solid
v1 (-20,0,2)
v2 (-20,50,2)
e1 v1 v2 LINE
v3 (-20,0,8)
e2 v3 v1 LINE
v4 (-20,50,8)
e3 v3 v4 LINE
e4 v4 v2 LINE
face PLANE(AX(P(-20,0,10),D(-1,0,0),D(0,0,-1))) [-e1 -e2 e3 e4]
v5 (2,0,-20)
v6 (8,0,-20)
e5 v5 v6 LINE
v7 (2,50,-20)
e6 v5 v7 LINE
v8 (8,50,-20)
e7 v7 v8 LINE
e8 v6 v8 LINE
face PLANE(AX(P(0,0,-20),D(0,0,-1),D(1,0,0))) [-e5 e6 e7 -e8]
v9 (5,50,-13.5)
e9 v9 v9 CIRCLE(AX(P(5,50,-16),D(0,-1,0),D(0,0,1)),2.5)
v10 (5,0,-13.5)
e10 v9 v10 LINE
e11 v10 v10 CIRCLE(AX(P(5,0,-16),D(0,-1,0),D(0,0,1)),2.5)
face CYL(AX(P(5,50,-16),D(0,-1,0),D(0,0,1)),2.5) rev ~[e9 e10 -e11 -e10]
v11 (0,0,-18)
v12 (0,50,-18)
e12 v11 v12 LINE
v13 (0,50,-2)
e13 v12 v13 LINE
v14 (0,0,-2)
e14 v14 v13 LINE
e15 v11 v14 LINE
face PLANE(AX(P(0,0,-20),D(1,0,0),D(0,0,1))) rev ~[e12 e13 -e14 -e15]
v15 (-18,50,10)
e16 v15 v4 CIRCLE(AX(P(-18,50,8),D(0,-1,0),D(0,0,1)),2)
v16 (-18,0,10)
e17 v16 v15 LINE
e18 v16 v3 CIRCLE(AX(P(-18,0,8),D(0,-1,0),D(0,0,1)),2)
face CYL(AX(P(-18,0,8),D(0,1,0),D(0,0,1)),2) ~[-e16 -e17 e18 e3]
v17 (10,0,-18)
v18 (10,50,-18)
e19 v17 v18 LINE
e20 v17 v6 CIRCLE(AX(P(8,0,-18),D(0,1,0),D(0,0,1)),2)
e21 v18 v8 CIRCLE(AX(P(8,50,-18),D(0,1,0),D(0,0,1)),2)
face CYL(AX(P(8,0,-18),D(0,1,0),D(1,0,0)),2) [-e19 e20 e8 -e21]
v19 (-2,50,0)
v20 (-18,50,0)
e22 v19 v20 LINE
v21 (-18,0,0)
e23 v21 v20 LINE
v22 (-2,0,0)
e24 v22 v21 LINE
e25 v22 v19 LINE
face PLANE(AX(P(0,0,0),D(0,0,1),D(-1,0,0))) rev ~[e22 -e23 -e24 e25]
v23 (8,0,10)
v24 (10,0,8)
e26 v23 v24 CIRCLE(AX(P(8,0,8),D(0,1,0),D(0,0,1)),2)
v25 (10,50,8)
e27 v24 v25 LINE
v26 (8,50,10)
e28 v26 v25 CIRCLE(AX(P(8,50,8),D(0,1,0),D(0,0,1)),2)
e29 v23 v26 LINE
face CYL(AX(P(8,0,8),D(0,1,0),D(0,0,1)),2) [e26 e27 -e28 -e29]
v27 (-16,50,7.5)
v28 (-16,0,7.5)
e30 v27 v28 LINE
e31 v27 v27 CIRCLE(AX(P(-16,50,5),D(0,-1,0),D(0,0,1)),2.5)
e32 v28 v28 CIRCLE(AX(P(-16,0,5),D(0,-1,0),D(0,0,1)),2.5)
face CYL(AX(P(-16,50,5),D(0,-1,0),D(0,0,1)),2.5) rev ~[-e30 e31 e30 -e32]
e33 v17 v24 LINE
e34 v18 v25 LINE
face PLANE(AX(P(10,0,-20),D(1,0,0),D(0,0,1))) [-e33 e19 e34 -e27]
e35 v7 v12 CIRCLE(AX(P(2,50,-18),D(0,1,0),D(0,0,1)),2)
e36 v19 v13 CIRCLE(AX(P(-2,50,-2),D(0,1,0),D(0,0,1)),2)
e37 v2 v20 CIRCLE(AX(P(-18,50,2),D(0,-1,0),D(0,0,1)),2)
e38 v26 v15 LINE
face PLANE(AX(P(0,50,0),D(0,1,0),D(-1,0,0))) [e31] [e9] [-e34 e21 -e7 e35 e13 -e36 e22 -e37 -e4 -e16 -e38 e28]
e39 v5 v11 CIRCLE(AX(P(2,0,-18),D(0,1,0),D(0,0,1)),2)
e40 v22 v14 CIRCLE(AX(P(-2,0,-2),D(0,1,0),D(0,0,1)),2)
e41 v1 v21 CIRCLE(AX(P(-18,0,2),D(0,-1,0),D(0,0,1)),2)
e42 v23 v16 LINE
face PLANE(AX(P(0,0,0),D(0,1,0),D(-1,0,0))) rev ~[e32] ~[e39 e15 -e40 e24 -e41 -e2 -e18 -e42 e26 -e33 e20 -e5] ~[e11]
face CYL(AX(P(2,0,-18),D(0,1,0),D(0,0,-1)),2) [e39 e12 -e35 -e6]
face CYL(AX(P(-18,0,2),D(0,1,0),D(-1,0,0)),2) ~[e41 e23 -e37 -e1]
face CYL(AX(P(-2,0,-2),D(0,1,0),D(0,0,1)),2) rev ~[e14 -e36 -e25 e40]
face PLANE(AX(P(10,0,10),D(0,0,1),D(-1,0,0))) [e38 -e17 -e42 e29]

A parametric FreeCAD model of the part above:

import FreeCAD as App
import Part
import Sketcher

V = App.Vector
Q = App.Units.Quantity


def edges_at(feature, points):
    """Names of the edges that pass closest to the given points."""
    edges = feature.Shape.Edges
    near = lambda p: min(range(len(edges)), key=lambda i: edges[i].distToShape(Part.Vertex(*p))[0])
    return sorted({f"Edge{near(p) + 1}" for p in points})

doc = App.newDocument("Part")
params = doc.addObject("Spreadsheet::Sheet", "Params")
for row, (alias, value) in enumerate([
    ("sketch1_width", "30 mm"),
    ("sketch1_width2", "20 mm"),
    ("pad1_length", "50 mm"),
    ("sketch2_diameter", "5 mm"),
    ("hole_diameter", "5 mm"),
    ("fillet_radius", "2 mm"),
    ("fillet2_radius", "2 mm"),
], start=1):
    params.set(f"A{row}", alias)
    params.set(f"B{row}", "=" + value)
    params.setAlias(f"B{row}", alias)

body = doc.addObject("PartDesign::Body", "Body")

# Sketch on XZ plane
sketch1 = doc.addObject("Sketcher::SketchObject", "Sketch")
body.addObject(sketch1)
sketch1.AttachmentSupport = (doc.XZ_Plane, [""])
sketch1.MapMode = "FlatFace"
sketch1.addGeometry(Part.LineSegment(V(-20, 10, 0), V(10, 10, 0)), False)
sketch1.addGeometry(Part.LineSegment(V(10, 10, 0), V(10, -20, 0)), False)
sketch1.addGeometry(Part.LineSegment(V(10, -20, 0), V(0, -20, 0)), False)
sketch1.addGeometry(Part.LineSegment(V(0, -20, 0), V(0, 0, 0)), False)
sketch1.addGeometry(Part.LineSegment(V(0, 0, 0), V(-20, 0, 0)), False)
sketch1.addGeometry(Part.LineSegment(V(-20, 0, 0), V(-20, 10, 0)), False)
sketch1.addConstraint(Sketcher.Constraint("Coincident", 0, 2, 1, 1))
sketch1.addConstraint(Sketcher.Constraint("Coincident", 1, 2, 2, 1))
sketch1.addConstraint(Sketcher.Constraint("Coincident", 2, 2, 3, 1))
sketch1.addConstraint(Sketcher.Constraint("Coincident", 3, 2, 4, 1))
sketch1.addConstraint(Sketcher.Constraint("Coincident", 4, 2, 5, 1))
sketch1.addConstraint(Sketcher.Constraint("Coincident", 5, 2, 0, 1))
sketch1.addConstraint(Sketcher.Constraint("Horizontal", 0))
sketch1.addConstraint(Sketcher.Constraint("Vertical", 1))
sketch1.addConstraint(Sketcher.Constraint("Horizontal", 2))
sketch1.addConstraint(Sketcher.Constraint("Vertical", 3))
sketch1.addConstraint(Sketcher.Constraint("Horizontal", 4))
sketch1.addConstraint(Sketcher.Constraint("Vertical", 5))
sketch1.addConstraint(Sketcher.Constraint("Coincident", 3, 2, -1, 1))
sketch1.addConstraint(Sketcher.Constraint("Equal", 0, 1))
sketch1.addConstraint(Sketcher.Constraint("Equal", 4, 3))
sketch1.addConstraint(Sketcher.Constraint("DistanceX", 0, 1, 0, 2, Q("30 mm")))
sketch1.addConstraint(Sketcher.Constraint("DistanceX", 4, 2, 4, 1, Q("20 mm")))
sketch1.setExpression("Constraints[15]", "Params.sketch1_width")
sketch1.setExpression("Constraints[16]", "Params.sketch1_width2")
pad1 = doc.addObject("PartDesign::Pad", "Pad")
body.addObject(pad1)
pad1.Profile = sketch1
pad1.setExpression("Length", "Params.pad1_length")
pad1.Reversed = True

# Sketch on XZ plane
sketch2 = doc.addObject("Sketcher::SketchObject", "Sketch001")
body.addObject(sketch2)
sketch2.AttachmentSupport = (doc.XZ_Plane, [""])
sketch2.MapMode = "FlatFace"
sketch2.AttachmentOffset = App.Placement(V(0, 0, -50), App.Rotation())
sketch2.addGeometry(Part.Circle(V(-16, 5, 0), V(0, 0, 1), 2.5), False)
sketch2.addGeometry(Part.Circle(V(5, -16, 0), V(0, 0, 1), 2.5), False)
sketch2.addConstraint(Sketcher.Constraint("Equal", 0, 1))
sketch2.addConstraint(Sketcher.Constraint("Diameter", 0, Q("5 mm")))
sketch2.addConstraint(Sketcher.Constraint("DistanceX", 0, 3, -1, 1, Q("16 mm")))
sketch2.addConstraint(Sketcher.Constraint("DistanceY", -1, 1, 0, 3, Q("5 mm")))
sketch2.addConstraint(Sketcher.Constraint("DistanceX", -1, 1, 1, 3, Q("5 mm")))
sketch2.addConstraint(Sketcher.Constraint("DistanceY", 1, 3, -1, 1, Q("16 mm")))
sketch2.setExpression("Constraints[1]", "Params.sketch2_diameter")
doc.recompute()
hole = doc.addObject("PartDesign::Hole", "Hole")
body.addObject(hole)
hole.Profile = sketch2
hole.ThreadType = "None"
hole.setExpression("Diameter", "Params.hole_diameter")
hole.DepthType = "ThroughAll"
hole.Reversed = True
doc.recompute()

fillet = doc.addObject("PartDesign::Fillet", "Fillet")
body.addObject(fillet)
fillet.Base = (hole, edges_at(hole, [(10, 25, 10), (0, 25, 0)]))
fillet.setExpression("Radius", "Params.fillet_radius")
doc.recompute()

fillet2 = doc.addObject("PartDesign::Fillet", "Fillet001")
body.addObject(fillet2)
fillet2.Base = (fillet, edges_at(fillet, [
    (10, 25, -20),
    (0, 25, -20),
    (-20, 25, 0),
    (-20, 25, 10),
]))
fillet2.setExpression("Radius", "Params.fillet2_radius")

doc.recompute()
